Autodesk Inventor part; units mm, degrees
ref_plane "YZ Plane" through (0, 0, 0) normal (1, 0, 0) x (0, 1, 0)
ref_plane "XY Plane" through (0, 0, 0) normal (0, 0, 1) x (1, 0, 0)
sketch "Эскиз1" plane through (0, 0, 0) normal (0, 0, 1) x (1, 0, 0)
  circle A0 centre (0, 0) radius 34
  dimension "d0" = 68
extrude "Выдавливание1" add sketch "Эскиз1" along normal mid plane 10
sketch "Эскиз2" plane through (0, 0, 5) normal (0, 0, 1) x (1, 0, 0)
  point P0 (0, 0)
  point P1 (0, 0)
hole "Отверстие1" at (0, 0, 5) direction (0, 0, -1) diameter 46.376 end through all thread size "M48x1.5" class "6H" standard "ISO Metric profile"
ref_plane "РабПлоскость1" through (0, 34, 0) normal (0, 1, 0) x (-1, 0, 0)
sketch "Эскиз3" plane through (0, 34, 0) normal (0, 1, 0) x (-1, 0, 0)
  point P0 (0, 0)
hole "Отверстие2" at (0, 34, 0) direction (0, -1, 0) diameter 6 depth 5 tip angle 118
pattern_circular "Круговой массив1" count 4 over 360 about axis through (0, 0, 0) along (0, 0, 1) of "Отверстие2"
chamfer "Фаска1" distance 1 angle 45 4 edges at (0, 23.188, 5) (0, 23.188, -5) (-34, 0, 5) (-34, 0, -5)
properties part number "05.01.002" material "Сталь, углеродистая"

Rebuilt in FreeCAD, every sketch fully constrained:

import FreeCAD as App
import Part
import Sketcher

V = App.Vector


def edges_at(feature, points):
    """Names of the edges that pass closest to the given points."""
    edges = feature.Shape.Edges
    near = lambda p: min(range(len(edges)), key=lambda i: edges[i].distToShape(Part.Vertex(*p))[0])
    return sorted({f"Edge{near(p) + 1}" for p in points})

doc = App.newDocument("Part")
params = doc.addObject("Spreadsheet::Sheet", "Params")
for row, (alias, value) in enumerate([
    ("sketch1_diameter", "68 mm"),
    ("pad1_length", "10 mm"),
    ("hole_diameter", "46.376 mm"),
    ("sketch3_diameter", "6 mm"),
    ("hole2_diameter", "6 mm"),
    ("hole2_depth", "5 mm"),
    ("chamfer_size", "1 mm"),
], start=1):
    params.set(f"A{row}", alias)
    params.set(f"B{row}", "=" + value)
    params.setAlias(f"B{row}", alias)

body = doc.addObject("PartDesign::Body", "Body")

sketch1 = body.newObject("Sketcher::SketchObject", "Sketch")
sketch1.AttachmentSupport = (doc.getObject("XY_Plane"), [""])
sketch1.MapMode = "FlatFace"
sketch1.addGeometry(Part.Circle(V(0, 0, 0), V(0, 0, 1), 34), False)
sketch1.addConstraint(Sketcher.Constraint("Coincident", 0, 3, -1, 1))
sketch1.addConstraint(Sketcher.Constraint("Diameter", 0, 68.0))
sketch1.setExpression("Constraints[1]", "Params.sketch1_diameter")
pad1 = body.newObject("PartDesign::Pad", "Pad")
pad1.Profile = sketch1
pad1.setExpression("Length", "Params.pad1_length")
pad1.Midplane = True

sketch2 = body.newObject("Sketcher::SketchObject", "Sketch001")
sketch2.AttachmentSupport = (doc.getObject("XY_Plane"), [""])
sketch2.MapMode = "FlatFace"
sketch2.AttachmentOffset = App.Placement(V(0, 0, 5), App.Rotation())
sketch2.addGeometry(Part.Circle(V(0, 0, 0), V(0, 0, 1), 23), False)
sketch2.addConstraint(Sketcher.Constraint("Coincident", 0, 3, -1, 1))
sketch2.addConstraint(Sketcher.Constraint("Diameter", 0, 46.376))
doc.recompute()
hole = body.newObject("PartDesign::Hole", "Hole")
hole.Profile = sketch2
hole.ThreadType = "None"
hole.setExpression("Diameter", "Params.hole_diameter")
hole.DepthType = "ThroughAll"

sketch3 = body.newObject("Sketcher::SketchObject", "Sketch002")
sketch3.AttachmentSupport = (doc.getObject("XZ_Plane"), [""])
sketch3.MapMode = "FlatFace"
sketch3.AttachmentOffset = App.Placement(V(0, 0, -34), App.Rotation())
sketch3.addGeometry(Part.Circle(V(0, 0, 0), V(0, 0, 1), 3), False)
sketch3.addConstraint(Sketcher.Constraint("Coincident", 0, 3, -1, 1))
sketch3.addConstraint(Sketcher.Constraint("Diameter", 0, 6.0))
sketch3.setExpression("Constraints[1]", "Params.sketch3_diameter")
doc.recompute()
hole2 = body.newObject("PartDesign::Hole", "Hole001")
hole2.Profile = sketch3
hole2.ThreadType = "None"
hole2.setExpression("Diameter", "Params.hole2_diameter")
hole2.DepthType = "Dimension"
hole2.setExpression("Depth", "Params.hole2_depth")
hole2.DrillPoint = "Angled"
hole2.DrillPointAngle = 118
hole2.Reversed = True
doc.recompute()

polarpattern = body.newObject("PartDesign::PolarPattern", "PolarPattern")
polarpattern.Originals = [hole2]
polarpattern.Axis = (doc.getObject("Z_Axis"), [""])
polarpattern.Angle = 360
polarpattern.Occurrences = 4
body.Tip = polarpattern
doc.recompute()

chamfer = body.newObject("PartDesign::Chamfer", "Chamfer")
chamfer.Base = (polarpattern, edges_at(polarpattern, [
    (0, 23.188, 5),
    (0, 23.188, -5),
    (-34, 0, 5),
    (-34, 0, -5),
]))
chamfer.setExpression("Size", "Params.chamfer_size")

doc.recompute()
